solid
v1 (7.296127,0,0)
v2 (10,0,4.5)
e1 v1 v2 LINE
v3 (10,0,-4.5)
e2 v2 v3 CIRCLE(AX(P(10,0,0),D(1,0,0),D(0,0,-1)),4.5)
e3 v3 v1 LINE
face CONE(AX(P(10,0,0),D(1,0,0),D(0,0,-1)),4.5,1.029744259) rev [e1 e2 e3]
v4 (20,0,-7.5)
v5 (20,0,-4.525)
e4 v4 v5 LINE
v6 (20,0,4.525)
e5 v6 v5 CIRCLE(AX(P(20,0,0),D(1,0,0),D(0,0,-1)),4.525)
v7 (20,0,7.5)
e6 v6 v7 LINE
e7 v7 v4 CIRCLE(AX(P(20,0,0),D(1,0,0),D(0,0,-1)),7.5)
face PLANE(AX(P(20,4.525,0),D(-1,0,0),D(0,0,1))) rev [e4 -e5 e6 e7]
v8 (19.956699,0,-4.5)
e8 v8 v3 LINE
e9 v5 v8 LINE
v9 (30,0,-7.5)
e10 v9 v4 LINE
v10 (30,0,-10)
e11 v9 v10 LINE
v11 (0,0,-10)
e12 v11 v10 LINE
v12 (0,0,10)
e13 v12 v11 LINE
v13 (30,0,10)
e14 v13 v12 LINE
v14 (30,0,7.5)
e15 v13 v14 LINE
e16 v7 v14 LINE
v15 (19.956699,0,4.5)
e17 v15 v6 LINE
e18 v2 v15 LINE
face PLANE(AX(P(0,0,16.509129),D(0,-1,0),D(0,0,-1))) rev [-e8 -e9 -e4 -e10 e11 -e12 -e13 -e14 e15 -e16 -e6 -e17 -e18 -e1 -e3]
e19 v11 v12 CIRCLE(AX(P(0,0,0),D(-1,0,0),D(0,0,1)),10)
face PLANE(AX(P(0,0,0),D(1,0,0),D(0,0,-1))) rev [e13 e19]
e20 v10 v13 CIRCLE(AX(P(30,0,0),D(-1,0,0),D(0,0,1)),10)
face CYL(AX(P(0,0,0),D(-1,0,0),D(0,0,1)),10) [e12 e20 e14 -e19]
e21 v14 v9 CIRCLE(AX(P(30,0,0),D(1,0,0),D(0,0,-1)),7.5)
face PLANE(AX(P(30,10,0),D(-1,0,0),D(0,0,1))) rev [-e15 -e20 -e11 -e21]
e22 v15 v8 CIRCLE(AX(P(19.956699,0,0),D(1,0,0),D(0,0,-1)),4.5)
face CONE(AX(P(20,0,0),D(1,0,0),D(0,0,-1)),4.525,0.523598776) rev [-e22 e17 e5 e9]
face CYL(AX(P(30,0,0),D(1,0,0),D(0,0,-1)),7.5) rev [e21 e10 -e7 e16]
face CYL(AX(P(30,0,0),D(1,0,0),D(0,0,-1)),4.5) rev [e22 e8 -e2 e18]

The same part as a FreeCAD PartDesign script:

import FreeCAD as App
import Part
import Sketcher

V = App.Vector
Q = App.Units.Quantity

doc = App.newDocument("Part")
body = doc.addObject("PartDesign::Body", "Body")

# Sketch on XY plane
sketch1 = doc.addObject("Sketcher::SketchObject", "Sketch")
body.addObject(sketch1)
sketch1.AttachmentSupport = (doc.XY_Plane, [""])
sketch1.MapMode = "FlatFace"
sketch1.addGeometry([
    Part.LineSegment(V(0, 10, 0), V(0, 0, 0)),
    Part.LineSegment(V(0, 0, 0), V(30, 0, 0)),
    Part.LineSegment(V(30, 0, 0), V(30, 10, 0)),
    Part.LineSegment(V(30, 10, 0), V(0, 10, 0)),
], False)
sketch1.addConstraint([
    Sketcher.Constraint("Coincident", 0, 2, 1, 1),
    Sketcher.Constraint("Coincident", 1, 2, 2, 1),
    Sketcher.Constraint("Coincident", 2, 2, 3, 1),
    Sketcher.Constraint("Coincident", 3, 2, 0, 1),
    Sketcher.Constraint("Vertical", 0),
    Sketcher.Constraint("Horizontal", 1),
    Sketcher.Constraint("Vertical", 2),
    Sketcher.Constraint("Horizontal", 3),
    Sketcher.Constraint("Coincident", 0, 2, -1, 1),
    Sketcher.Constraint("DistanceX", 1, 1, 1, 2, 30.0),
    Sketcher.Constraint("DistanceY", 0, 2, 0, 1, 10.0),
])
revolution = doc.addObject("PartDesign::Revolution", "Revolution")
body.addObject(revolution)
revolution.Profile = sketch1
revolution.ReferenceAxis = (sketch1, ["H_Axis"])
revolution.Angle = 360

# Sketch on XZ plane
sketch2 = doc.addObject("Sketcher::SketchObject", "Sketch001")
body.addObject(sketch2)
sketch2.AttachmentSupport = (doc.XZ_Plane, [""])
sketch2.MapMode = "FlatFace"
sketch2.addGeometry([
    Part.LineSegment(V(7.296, 0, 0), V(30, 0, 0)),  # 0
    Part.LineSegment(V(30, 0, 0), V(30, -7.5, 0)),  # 1
    Part.LineSegment(V(30, -7.5, 0), V(20, -7.5, 0)),  # 2
    Part.LineSegment(V(20, -7.5, 0), V(20, -4.525, 0)),  # 3
    Part.LineSegment(V(20, -4.525, 0), V(19.957, -4.5, 0)),  # 4
    Part.LineSegment(V(19.957, -4.5, 0), V(10, -4.5, 0)),  # 5
    Part.LineSegment(V(10, -4.5, 0), V(7.296, 0, 0)),  # 6
], False)
sketch2.addConstraint([
    Sketcher.Constraint("Coincident", 0, 2, 1, 1),
    Sketcher.Constraint("Coincident", 1, 2, 2, 1),
    Sketcher.Constraint("Coincident", 2, 2, 3, 1),
    Sketcher.Constraint("Coincident", 3, 2, 4, 1),
    Sketcher.Constraint("Coincident", 4, 2, 5, 1),
    Sketcher.Constraint("Coincident", 5, 2, 6, 1),
    Sketcher.Constraint("Coincident", 6, 2, 0, 1),
    Sketcher.Constraint("Horizontal", 0),
    Sketcher.Constraint("Vertical", 1),
    Sketcher.Constraint("Horizontal", 2),
    Sketcher.Constraint("Vertical", 3),
    Sketcher.Constraint("Horizontal", 5),
    Sketcher.Constraint("PointOnObject", 0, 2, -1),
    Sketcher.Constraint("DistanceX", 2, 2, 2, 1, 10.0),
    Sketcher.Constraint("Angle", 4, Q("150 deg")),
    Sketcher.Constraint("Angle", 6, Q("121 deg")),
    Sketcher.Constraint("DistanceY", 1, 2, 1, 1, 7.5),
    Sketcher.Constraint("DistanceX", -1, 1, 0, 2, 30.0),
    Sketcher.Constraint("DistanceX", -1, 1, 5, 2, 10.0),
    Sketcher.Constraint("DistanceY", 2, 2, 4, 2, 3.0),
    Sketcher.Constraint("Distance", 4, 0.05),
])
groove = doc.addObject("PartDesign::Groove", "Groove")
body.addObject(groove)
groove.Profile = sketch2
groove.ReferenceAxis = (sketch2, ["H_Axis"])
groove.Angle = 360

# Sketch on YZ plane
sketch3 = doc.addObject("Sketcher::SketchObject", "Sketch002")
body.addObject(sketch3)
sketch3.AttachmentSupport = (doc.YZ_Plane, [""])
sketch3.MapMode = "FlatFace"
sketch3.AttachmentOffset = App.Placement(V(0, 0, 30), App.Rotation())
sketch3.addGeometry([
    Part.LineSegment(V(12, 17, 0), V(0, 17, 0)),
    Part.LineSegment(V(0, 17, 0), V(0, -15, 0)),
    Part.LineSegment(V(0, -15, 0), V(12, -15, 0)),
    Part.LineSegment(V(12, -15, 0), V(12, 17, 0)),
], False)
sketch3.addConstraint([
    Sketcher.Constraint("Coincident", 0, 2, 1, 1),
    Sketcher.Constraint("Coincident", 1, 2, 2, 1),
    Sketcher.Constraint("Coincident", 2, 2, 3, 1),
    Sketcher.Constraint("Coincident", 3, 2, 0, 1),
    Sketcher.Constraint("Horizontal", 0),
    Sketcher.Constraint("Vertical", 1),
    Sketcher.Constraint("Horizontal", 2),
    Sketcher.Constraint("Vertical", 3),
    Sketcher.Constraint("PointOnObject", 0, 2, -2),
    Sketcher.Constraint("DistanceX", 0, 2, 0, 1, 12.0),
    Sketcher.Constraint("DistanceY", 1, 2, 1, 1, 32.0),
    Sketcher.Constraint("DistanceY", -1, 1, 0, 2, 16.509129),
])
pocket1 = doc.addObject("PartDesign::Pocket", "Pocket")
body.addObject(pocket1)
pocket1.Profile = sketch3
pocket1.Type = "ThroughAll"

doc.recompute()
